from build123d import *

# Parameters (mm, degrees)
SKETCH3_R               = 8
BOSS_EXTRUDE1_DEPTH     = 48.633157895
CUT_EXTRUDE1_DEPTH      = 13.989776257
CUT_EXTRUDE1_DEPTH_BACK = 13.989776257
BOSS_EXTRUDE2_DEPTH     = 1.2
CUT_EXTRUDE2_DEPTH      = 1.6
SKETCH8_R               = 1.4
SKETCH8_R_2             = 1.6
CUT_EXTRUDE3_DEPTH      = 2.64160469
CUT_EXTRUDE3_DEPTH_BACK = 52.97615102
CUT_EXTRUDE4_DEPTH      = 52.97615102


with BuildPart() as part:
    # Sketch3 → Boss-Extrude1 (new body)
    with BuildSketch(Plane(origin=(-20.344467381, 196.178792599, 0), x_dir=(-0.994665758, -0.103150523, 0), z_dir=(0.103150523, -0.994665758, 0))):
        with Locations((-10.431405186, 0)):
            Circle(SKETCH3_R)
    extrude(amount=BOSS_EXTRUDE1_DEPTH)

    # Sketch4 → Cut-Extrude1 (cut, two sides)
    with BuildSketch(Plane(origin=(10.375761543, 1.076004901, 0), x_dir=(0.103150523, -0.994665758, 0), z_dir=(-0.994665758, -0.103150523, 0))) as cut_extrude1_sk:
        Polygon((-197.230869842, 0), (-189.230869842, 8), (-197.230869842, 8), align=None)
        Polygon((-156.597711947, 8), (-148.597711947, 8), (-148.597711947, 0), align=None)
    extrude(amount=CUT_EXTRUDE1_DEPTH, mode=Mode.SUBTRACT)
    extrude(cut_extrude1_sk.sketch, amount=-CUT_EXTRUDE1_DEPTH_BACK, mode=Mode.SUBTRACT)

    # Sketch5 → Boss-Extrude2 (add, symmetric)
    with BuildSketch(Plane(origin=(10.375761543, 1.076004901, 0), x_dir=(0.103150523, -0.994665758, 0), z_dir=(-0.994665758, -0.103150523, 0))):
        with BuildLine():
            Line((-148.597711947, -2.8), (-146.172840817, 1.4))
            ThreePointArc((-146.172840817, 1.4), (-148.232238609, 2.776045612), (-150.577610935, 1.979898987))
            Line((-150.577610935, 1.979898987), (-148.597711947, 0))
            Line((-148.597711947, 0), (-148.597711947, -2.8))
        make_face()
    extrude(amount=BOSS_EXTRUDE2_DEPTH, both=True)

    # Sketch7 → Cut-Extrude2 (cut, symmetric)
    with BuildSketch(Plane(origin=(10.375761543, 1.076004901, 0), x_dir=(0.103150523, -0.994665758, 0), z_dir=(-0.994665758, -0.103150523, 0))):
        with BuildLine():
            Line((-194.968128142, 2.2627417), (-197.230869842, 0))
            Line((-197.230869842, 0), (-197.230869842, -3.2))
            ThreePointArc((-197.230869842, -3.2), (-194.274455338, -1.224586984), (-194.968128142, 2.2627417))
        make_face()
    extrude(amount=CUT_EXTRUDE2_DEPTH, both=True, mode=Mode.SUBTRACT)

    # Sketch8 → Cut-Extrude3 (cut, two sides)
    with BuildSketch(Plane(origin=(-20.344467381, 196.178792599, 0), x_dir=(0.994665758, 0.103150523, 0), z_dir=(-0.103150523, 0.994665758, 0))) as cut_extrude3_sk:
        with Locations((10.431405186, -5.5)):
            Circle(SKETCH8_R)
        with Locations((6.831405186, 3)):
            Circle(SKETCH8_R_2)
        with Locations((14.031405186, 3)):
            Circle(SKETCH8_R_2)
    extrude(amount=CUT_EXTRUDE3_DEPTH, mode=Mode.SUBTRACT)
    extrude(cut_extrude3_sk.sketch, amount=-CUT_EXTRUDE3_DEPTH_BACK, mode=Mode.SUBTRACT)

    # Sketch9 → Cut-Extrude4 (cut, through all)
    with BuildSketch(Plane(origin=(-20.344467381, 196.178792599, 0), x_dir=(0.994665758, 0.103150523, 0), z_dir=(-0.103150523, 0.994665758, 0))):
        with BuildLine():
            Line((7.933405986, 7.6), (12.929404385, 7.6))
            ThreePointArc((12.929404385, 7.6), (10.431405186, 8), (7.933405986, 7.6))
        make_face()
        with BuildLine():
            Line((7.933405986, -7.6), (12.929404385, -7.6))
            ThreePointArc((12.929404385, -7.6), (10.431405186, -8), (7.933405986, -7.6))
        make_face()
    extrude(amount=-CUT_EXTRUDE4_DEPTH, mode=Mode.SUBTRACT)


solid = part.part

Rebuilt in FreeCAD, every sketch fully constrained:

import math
import FreeCAD as App
import Part
import Sketcher
Q = App.Units.Quantity

doc = App.newDocument("Part")
params = doc.addObject("Spreadsheet::Sheet", "Params")
for row, (alias, value) in enumerate([
    ("sketch1_diameter", "16 mm"),
    ("pad1_length", "48.633158 mm"),
    ("sketch2_width", "8 mm"),
    ("sketch3_radius", "2.8 mm"),
    ("sketch3_height", "2.8 mm"),
    ("pad2_length", "2.4 mm"),
    ("sketch4_radius", "3.2 mm"),
    ("pocket2_length", "3.2 mm"),
    ("sketch5_diameter", "2.8 mm"),
    ("sketch5_diameter2", "3.2 mm"),
    ("sketch6_radius", "8 mm"),
], start=1):
    params.set(f"A{row}", alias)
    params.set(f"B{row}", "=" + value)
    params.setAlias(f"B{row}", alias)

body = doc.addObject("PartDesign::Body", "Body")

# Sketch on an angled plane
sketch1 = body.newObject("Sketcher::SketchObject", "Sketch")
sketch1.Placement = App.Placement(App.Vector(-20.344467, 196.178793, 0), App.Rotation(App.Vector(-0.994665758, -0.103150523, 0), App.Vector(0, 0, -1.000000001), App.Vector(0.103150523, -0.994665758, 0), "ZXY"))
sketch1.addGeometry(Part.Circle(App.Vector(-10.431405, 0, 0), App.Vector(0, 0, 1), 8), False)
sketch1.addConstraint(Sketcher.Constraint("PointOnObject", 0, 3, -1))
sketch1.addConstraint(Sketcher.Constraint("Diameter", 0, 16.0))
sketch1.addConstraint(Sketcher.Constraint("DistanceX", 0, 3, -1, 1, 10.431405))
sketch1.setExpression("Constraints[1]", "Params.sketch1_diameter")
pad1 = body.newObject("PartDesign::Pad", "Pad")
pad1.Profile = sketch1
pad1.setExpression("Length", "Params.pad1_length")

# Sketch on an angled plane
sketch2 = body.newObject("Sketcher::SketchObject", "Sketch001")
sketch2.Placement = App.Placement(App.Vector(10.375762, 1.076005, 0), App.Rotation(App.Vector(0.103150523, -0.994665758, 0), App.Vector(0, 0, 1.000000001), App.Vector(-0.994665758, -0.103150523, 0), "ZXY"))
sketch2.addGeometry(Part.LineSegment(App.Vector(-197.23087, 0, 0), App.Vector(-189.23087, 8, 0)), False)
sketch2.addGeometry(Part.LineSegment(App.Vector(-189.23087, 8, 0), App.Vector(-197.23087, 8, 0)), False)
sketch2.addGeometry(Part.LineSegment(App.Vector(-197.23087, 8, 0), App.Vector(-197.23087, 0, 0)), False)
sketch2.addGeometry(Part.LineSegment(App.Vector(-148.597712, 8, 0), App.Vector(-156.597712, 8, 0)), False)
sketch2.addGeometry(Part.LineSegment(App.Vector(-156.597712, 8, 0), App.Vector(-148.597712, 0, 0)), False)
sketch2.addGeometry(Part.LineSegment(App.Vector(-148.597712, 0, 0), App.Vector(-148.597712, 8, 0)), False)
sketch2.addConstraint(Sketcher.Constraint("Coincident", 0, 2, 1, 1))
sketch2.addConstraint(Sketcher.Constraint("Coincident", 1, 2, 2, 1))
sketch2.addConstraint(Sketcher.Constraint("Coincident", 2, 2, 0, 1))
sketch2.addConstraint(Sketcher.Constraint("Coincident", 3, 2, 4, 1))
sketch2.addConstraint(Sketcher.Constraint("Coincident", 4, 2, 5, 1))
sketch2.addConstraint(Sketcher.Constraint("Coincident", 5, 2, 3, 1))
sketch2.addConstraint(Sketcher.Constraint("Horizontal", 1))
sketch2.addConstraint(Sketcher.Constraint("Vertical", 2))
sketch2.addConstraint(Sketcher.Constraint("Horizontal", 3))
sketch2.addConstraint(Sketcher.Constraint("Vertical", 5))
sketch2.addConstraint(Sketcher.Constraint("PointOnObject", 2, 2, -1))
sketch2.addConstraint(Sketcher.Constraint("PointOnObject", 4, 2, -1))
sketch2.addConstraint(Sketcher.Constraint("Perpendicular", 0, 4))
sketch2.addConstraint(Sketcher.Constraint("Horizontal", 1, 2, 3, 2))
sketch2.addConstraint(Sketcher.Constraint("Equal", 1, 3))
sketch2.addConstraint(Sketcher.Constraint("DistanceX", 1, 2, 1, 1, 8.0))
sketch2.addConstraint(Sketcher.Constraint("DistanceX", 0, 2, -1, 1, 189.23087))
sketch2.addConstraint(Sketcher.Constraint("DistanceX", 3, 2, -1, 1, 156.597712))
sketch2.setExpression("Constraints[15]", "Params.sketch2_width")
pocket1 = body.newObject("PartDesign::Pocket", "Pocket")
pocket1.Profile = sketch2
pocket1.Type = "ThroughAll"
pocket1.Midplane = True

# Sketch on an angled plane
sketch3 = body.newObject("Sketcher::SketchObject", "Sketch002")
sketch3.Placement = App.Placement(App.Vector(10.375762, 1.076005, 0), App.Rotation(App.Vector(0.103150523, -0.994665758, 0), App.Vector(0, 0, 1.000000001), App.Vector(-0.994665758, -0.103150523, 0), "ZXY"))
sketch3.addGeometry(Part.LineSegment(App.Vector(-148.597712, -2.8, 0), App.Vector(-146.172841, 1.4, 0)), False)
sketch3.addGeometry(Part.ArcOfCircle(Part.Circle(App.Vector(-148.597712, 0, 0), App.Vector(0, 0, 1), 2.8), math.radians(30), math.radians(135)), False)
sketch3.addGeometry(Part.LineSegment(App.Vector(-150.577611, 1.979899, 0), App.Vector(-148.597712, 0, 0)), False)
sketch3.addGeometry(Part.LineSegment(App.Vector(-148.597712, 0, 0), App.Vector(-148.597712, -2.8, 0)), False)
sketch3.addConstraint(Sketcher.Constraint("Coincident", 0, 2, 1, 1))
sketch3.addConstraint(Sketcher.Constraint("Coincident", 1, 2, 2, 1))
sketch3.addConstraint(Sketcher.Constraint("Coincident", 2, 2, 3, 1))
sketch3.addConstraint(Sketcher.Constraint("Coincident", 3, 2, 0, 1))
sketch3.addConstraint(Sketcher.Constraint("Vertical", 3))
sketch3.addConstraint(Sketcher.Constraint("Coincident", 2, 2, 1, 3))
sketch3.addConstraint(Sketcher.Constraint("PointOnObject", 1, 3, -1))
sketch3.addConstraint(Sketcher.Constraint("Radius", 1, 2.8))
sketch3.addConstraint(Sketcher.Constraint("Angle", 0, Q("60 deg")))
sketch3.addConstraint(Sketcher.Constraint("Angle", 2, Q("-45 deg")))
sketch3.addConstraint(Sketcher.Constraint("DistanceY", 3, 2, 3, 1, 2.8))
sketch3.addConstraint(Sketcher.Constraint("DistanceX", 0, 2, -1, 1, 146.172841))
sketch3.setExpression("Constraints[7]", "Params.sketch3_radius")
sketch3.setExpression("Constraints[10]", "Params.sketch3_height")
pad2 = body.newObject("PartDesign::Pad", "Pad001")
pad2.Profile = sketch3
pad2.setExpression("Length", "Params.pad2_length")
pad2.Midplane = True

# Sketch on an angled plane
sketch4 = body.newObject("Sketcher::SketchObject", "Sketch003")
sketch4.Placement = App.Placement(App.Vector(10.375762, 1.076005, 0), App.Rotation(App.Vector(0.103150523, -0.994665758, 0), App.Vector(0, 0, 1.000000001), App.Vector(-0.994665758, -0.103150523, 0), "ZXY"))
sketch4.addGeometry(Part.LineSegment(App.Vector(-194.968128, 2.262742, 0), App.Vector(-197.23087, 0, 0)), False)
sketch4.addGeometry(Part.LineSegment(App.Vector(-197.23087, 0, 0), App.Vector(-197.23087, -3.2, 0)), False)
sketch4.addGeometry(Part.ArcOfCircle(Part.Circle(App.Vector(-197.23087, 0, 0), App.Vector(0, 0, 1), 3.2), math.radians(-90), math.radians(45)), False)
sketch4.addConstraint(Sketcher.Constraint("Coincident", 0, 2, 1, 1))
sketch4.addConstraint(Sketcher.Constraint("Coincident", 1, 2, 2, 1))
sketch4.addConstraint(Sketcher.Constraint("Coincident", 2, 2, 0, 1))
sketch4.addConstraint(Sketcher.Constraint("Vertical", 1))
sketch4.addConstraint(Sketcher.Constraint("Coincident", 0, 2, 2, 3))
sketch4.addConstraint(Sketcher.Constraint("PointOnObject", 2, 3, -1))
sketch4.addConstraint(Sketcher.Constraint("Radius", 2, 3.2))
sketch4.addConstraint(Sketcher.Constraint("Angle", 0, Q("-135 deg")))
sketch4.addConstraint(Sketcher.Constraint("DistanceX", 2, 3, -1, 1, 197.23087))
sketch4.setExpression("Constraints[6]", "Params.sketch4_radius")
pocket2 = body.newObject("PartDesign::Pocket", "Pocket001")
pocket2.Profile = sketch4
pocket2.setExpression("Length", "Params.pocket2_length")
pocket2.Midplane = True

# Sketch on an angled plane
sketch5 = body.newObject("Sketcher::SketchObject", "Sketch004")
sketch5.Placement = App.Placement(App.Vector(-20.344467, 196.178793, 0), App.Rotation(App.Vector(0.994665758, 0.103150523, 0), App.Vector(0, 0, -1.000000001), App.Vector(-0.103150523, 0.994665758, 0), "ZXY"))
sketch5.addGeometry(Part.Circle(App.Vector(10.431405, -5.5, 0), App.Vector(0, 0, 1), 1.4), False)
sketch5.addGeometry(Part.Circle(App.Vector(6.831405, 3, 0), App.Vector(0, 0, 1), 1.6), False)
sketch5.addGeometry(Part.Circle(App.Vector(14.031405, 3, 0), App.Vector(0, 0, 1), 1.6), False)
sketch5.addConstraint(Sketcher.Constraint("Equal", 1, 2))
sketch5.addConstraint(Sketcher.Constraint("Horizontal", 1, 3, 2, 3))
sketch5.addConstraint(Sketcher.Constraint("Diameter", 0, 2.8))
sketch5.addConstraint(Sketcher.Constraint("Diameter", 1, 3.2))
sketch5.addConstraint(Sketcher.Constraint("DistanceY", -1, 1, 1, 3, 3.0))
sketch5.addConstraint(Sketcher.Constraint("DistanceY", 0, 3, -1, 1, 5.5))
sketch5.addConstraint(Sketcher.Constraint("DistanceX", 1, 3, 0, 3, 3.6))
sketch5.addConstraint(Sketcher.Constraint("DistanceX", 1, 3, 2, 3, 7.2))
sketch5.addConstraint(Sketcher.Constraint("DistanceX", -1, 1, 0, 3, 10.431405))
sketch5.setExpression("Constraints[2]", "Params.sketch5_diameter")
sketch5.setExpression("Constraints[3]", "Params.sketch5_diameter2")
pocket3 = body.newObject("PartDesign::Pocket", "Pocket002")
pocket3.Profile = sketch5
pocket3.Type = "ThroughAll"
pocket3.Midplane = True

# Sketch on an angled plane
sketch6 = body.newObject("Sketcher::SketchObject", "Sketch005")
sketch6.Placement = App.Placement(App.Vector(-20.344467, 196.178793, 0), App.Rotation(App.Vector(0.994665758, 0.103150523, 0), App.Vector(0, 0, -1.000000001), App.Vector(-0.103150523, 0.994665758, 0), "ZXY"))
sketch6.addGeometry(Part.LineSegment(App.Vector(7.933406, 7.6, 0), App.Vector(12.929404, 7.6, 0)), False)
sketch6.addGeometry(Part.ArcOfCircle(Part.Circle(App.Vector(10.431405, 0, 0), App.Vector(0, 0, 1), 8), math.radians(71.805128), math.radians(108.194872)), False)
sketch6.addGeometry(Part.LineSegment(App.Vector(12.929404, -7.6, 0), App.Vector(7.933406, -7.6, 0)), False)
sketch6.addGeometry(Part.ArcOfCircle(Part.Circle(App.Vector(10.431405, 0, 0), App.Vector(0, 0, 1), 8), math.radians(-108.194872), math.radians(-71.805128)), False)
sketch6.addConstraint(Sketcher.Constraint("Coincident", 0, 1, 1, 2))
sketch6.addConstraint(Sketcher.Constraint("Coincident", 1, 1, 0, 2))
sketch6.addConstraint(Sketcher.Constraint("Coincident", 2, 1, 3, 2))
sketch6.addConstraint(Sketcher.Constraint("Coincident", 3, 1, 2, 2))
sketch6.addConstraint(Sketcher.Constraint("Horizontal", 0))
sketch6.addConstraint(Sketcher.Constraint("Horizontal", 2))
sketch6.addConstraint(Sketcher.Constraint("Coincident", 3, 3, 1, 3))
sketch6.addConstraint(Sketcher.Constraint("Equal", 1, 3))
sketch6.addConstraint(Sketcher.Constraint("Symmetric", 1, 1, 2, 1, -1))
sketch6.addConstraint(Sketcher.Constraint("Radius", 1, 8.0))
sketch6.addConstraint(Sketcher.Constraint("DistanceY", -1, 1, 0, 1, 7.6))
sketch6.addConstraint(Sketcher.Constraint("DistanceX", -1, 1, 1, 3, 10.431405))
sketch6.setExpression("Constraints[9]", "Params.sketch6_radius")
pocket4 = body.newObject("PartDesign::Pocket", "Pocket003")
pocket4.Profile = sketch6
pocket4.Type = "ThroughAll"

doc.recompute()
